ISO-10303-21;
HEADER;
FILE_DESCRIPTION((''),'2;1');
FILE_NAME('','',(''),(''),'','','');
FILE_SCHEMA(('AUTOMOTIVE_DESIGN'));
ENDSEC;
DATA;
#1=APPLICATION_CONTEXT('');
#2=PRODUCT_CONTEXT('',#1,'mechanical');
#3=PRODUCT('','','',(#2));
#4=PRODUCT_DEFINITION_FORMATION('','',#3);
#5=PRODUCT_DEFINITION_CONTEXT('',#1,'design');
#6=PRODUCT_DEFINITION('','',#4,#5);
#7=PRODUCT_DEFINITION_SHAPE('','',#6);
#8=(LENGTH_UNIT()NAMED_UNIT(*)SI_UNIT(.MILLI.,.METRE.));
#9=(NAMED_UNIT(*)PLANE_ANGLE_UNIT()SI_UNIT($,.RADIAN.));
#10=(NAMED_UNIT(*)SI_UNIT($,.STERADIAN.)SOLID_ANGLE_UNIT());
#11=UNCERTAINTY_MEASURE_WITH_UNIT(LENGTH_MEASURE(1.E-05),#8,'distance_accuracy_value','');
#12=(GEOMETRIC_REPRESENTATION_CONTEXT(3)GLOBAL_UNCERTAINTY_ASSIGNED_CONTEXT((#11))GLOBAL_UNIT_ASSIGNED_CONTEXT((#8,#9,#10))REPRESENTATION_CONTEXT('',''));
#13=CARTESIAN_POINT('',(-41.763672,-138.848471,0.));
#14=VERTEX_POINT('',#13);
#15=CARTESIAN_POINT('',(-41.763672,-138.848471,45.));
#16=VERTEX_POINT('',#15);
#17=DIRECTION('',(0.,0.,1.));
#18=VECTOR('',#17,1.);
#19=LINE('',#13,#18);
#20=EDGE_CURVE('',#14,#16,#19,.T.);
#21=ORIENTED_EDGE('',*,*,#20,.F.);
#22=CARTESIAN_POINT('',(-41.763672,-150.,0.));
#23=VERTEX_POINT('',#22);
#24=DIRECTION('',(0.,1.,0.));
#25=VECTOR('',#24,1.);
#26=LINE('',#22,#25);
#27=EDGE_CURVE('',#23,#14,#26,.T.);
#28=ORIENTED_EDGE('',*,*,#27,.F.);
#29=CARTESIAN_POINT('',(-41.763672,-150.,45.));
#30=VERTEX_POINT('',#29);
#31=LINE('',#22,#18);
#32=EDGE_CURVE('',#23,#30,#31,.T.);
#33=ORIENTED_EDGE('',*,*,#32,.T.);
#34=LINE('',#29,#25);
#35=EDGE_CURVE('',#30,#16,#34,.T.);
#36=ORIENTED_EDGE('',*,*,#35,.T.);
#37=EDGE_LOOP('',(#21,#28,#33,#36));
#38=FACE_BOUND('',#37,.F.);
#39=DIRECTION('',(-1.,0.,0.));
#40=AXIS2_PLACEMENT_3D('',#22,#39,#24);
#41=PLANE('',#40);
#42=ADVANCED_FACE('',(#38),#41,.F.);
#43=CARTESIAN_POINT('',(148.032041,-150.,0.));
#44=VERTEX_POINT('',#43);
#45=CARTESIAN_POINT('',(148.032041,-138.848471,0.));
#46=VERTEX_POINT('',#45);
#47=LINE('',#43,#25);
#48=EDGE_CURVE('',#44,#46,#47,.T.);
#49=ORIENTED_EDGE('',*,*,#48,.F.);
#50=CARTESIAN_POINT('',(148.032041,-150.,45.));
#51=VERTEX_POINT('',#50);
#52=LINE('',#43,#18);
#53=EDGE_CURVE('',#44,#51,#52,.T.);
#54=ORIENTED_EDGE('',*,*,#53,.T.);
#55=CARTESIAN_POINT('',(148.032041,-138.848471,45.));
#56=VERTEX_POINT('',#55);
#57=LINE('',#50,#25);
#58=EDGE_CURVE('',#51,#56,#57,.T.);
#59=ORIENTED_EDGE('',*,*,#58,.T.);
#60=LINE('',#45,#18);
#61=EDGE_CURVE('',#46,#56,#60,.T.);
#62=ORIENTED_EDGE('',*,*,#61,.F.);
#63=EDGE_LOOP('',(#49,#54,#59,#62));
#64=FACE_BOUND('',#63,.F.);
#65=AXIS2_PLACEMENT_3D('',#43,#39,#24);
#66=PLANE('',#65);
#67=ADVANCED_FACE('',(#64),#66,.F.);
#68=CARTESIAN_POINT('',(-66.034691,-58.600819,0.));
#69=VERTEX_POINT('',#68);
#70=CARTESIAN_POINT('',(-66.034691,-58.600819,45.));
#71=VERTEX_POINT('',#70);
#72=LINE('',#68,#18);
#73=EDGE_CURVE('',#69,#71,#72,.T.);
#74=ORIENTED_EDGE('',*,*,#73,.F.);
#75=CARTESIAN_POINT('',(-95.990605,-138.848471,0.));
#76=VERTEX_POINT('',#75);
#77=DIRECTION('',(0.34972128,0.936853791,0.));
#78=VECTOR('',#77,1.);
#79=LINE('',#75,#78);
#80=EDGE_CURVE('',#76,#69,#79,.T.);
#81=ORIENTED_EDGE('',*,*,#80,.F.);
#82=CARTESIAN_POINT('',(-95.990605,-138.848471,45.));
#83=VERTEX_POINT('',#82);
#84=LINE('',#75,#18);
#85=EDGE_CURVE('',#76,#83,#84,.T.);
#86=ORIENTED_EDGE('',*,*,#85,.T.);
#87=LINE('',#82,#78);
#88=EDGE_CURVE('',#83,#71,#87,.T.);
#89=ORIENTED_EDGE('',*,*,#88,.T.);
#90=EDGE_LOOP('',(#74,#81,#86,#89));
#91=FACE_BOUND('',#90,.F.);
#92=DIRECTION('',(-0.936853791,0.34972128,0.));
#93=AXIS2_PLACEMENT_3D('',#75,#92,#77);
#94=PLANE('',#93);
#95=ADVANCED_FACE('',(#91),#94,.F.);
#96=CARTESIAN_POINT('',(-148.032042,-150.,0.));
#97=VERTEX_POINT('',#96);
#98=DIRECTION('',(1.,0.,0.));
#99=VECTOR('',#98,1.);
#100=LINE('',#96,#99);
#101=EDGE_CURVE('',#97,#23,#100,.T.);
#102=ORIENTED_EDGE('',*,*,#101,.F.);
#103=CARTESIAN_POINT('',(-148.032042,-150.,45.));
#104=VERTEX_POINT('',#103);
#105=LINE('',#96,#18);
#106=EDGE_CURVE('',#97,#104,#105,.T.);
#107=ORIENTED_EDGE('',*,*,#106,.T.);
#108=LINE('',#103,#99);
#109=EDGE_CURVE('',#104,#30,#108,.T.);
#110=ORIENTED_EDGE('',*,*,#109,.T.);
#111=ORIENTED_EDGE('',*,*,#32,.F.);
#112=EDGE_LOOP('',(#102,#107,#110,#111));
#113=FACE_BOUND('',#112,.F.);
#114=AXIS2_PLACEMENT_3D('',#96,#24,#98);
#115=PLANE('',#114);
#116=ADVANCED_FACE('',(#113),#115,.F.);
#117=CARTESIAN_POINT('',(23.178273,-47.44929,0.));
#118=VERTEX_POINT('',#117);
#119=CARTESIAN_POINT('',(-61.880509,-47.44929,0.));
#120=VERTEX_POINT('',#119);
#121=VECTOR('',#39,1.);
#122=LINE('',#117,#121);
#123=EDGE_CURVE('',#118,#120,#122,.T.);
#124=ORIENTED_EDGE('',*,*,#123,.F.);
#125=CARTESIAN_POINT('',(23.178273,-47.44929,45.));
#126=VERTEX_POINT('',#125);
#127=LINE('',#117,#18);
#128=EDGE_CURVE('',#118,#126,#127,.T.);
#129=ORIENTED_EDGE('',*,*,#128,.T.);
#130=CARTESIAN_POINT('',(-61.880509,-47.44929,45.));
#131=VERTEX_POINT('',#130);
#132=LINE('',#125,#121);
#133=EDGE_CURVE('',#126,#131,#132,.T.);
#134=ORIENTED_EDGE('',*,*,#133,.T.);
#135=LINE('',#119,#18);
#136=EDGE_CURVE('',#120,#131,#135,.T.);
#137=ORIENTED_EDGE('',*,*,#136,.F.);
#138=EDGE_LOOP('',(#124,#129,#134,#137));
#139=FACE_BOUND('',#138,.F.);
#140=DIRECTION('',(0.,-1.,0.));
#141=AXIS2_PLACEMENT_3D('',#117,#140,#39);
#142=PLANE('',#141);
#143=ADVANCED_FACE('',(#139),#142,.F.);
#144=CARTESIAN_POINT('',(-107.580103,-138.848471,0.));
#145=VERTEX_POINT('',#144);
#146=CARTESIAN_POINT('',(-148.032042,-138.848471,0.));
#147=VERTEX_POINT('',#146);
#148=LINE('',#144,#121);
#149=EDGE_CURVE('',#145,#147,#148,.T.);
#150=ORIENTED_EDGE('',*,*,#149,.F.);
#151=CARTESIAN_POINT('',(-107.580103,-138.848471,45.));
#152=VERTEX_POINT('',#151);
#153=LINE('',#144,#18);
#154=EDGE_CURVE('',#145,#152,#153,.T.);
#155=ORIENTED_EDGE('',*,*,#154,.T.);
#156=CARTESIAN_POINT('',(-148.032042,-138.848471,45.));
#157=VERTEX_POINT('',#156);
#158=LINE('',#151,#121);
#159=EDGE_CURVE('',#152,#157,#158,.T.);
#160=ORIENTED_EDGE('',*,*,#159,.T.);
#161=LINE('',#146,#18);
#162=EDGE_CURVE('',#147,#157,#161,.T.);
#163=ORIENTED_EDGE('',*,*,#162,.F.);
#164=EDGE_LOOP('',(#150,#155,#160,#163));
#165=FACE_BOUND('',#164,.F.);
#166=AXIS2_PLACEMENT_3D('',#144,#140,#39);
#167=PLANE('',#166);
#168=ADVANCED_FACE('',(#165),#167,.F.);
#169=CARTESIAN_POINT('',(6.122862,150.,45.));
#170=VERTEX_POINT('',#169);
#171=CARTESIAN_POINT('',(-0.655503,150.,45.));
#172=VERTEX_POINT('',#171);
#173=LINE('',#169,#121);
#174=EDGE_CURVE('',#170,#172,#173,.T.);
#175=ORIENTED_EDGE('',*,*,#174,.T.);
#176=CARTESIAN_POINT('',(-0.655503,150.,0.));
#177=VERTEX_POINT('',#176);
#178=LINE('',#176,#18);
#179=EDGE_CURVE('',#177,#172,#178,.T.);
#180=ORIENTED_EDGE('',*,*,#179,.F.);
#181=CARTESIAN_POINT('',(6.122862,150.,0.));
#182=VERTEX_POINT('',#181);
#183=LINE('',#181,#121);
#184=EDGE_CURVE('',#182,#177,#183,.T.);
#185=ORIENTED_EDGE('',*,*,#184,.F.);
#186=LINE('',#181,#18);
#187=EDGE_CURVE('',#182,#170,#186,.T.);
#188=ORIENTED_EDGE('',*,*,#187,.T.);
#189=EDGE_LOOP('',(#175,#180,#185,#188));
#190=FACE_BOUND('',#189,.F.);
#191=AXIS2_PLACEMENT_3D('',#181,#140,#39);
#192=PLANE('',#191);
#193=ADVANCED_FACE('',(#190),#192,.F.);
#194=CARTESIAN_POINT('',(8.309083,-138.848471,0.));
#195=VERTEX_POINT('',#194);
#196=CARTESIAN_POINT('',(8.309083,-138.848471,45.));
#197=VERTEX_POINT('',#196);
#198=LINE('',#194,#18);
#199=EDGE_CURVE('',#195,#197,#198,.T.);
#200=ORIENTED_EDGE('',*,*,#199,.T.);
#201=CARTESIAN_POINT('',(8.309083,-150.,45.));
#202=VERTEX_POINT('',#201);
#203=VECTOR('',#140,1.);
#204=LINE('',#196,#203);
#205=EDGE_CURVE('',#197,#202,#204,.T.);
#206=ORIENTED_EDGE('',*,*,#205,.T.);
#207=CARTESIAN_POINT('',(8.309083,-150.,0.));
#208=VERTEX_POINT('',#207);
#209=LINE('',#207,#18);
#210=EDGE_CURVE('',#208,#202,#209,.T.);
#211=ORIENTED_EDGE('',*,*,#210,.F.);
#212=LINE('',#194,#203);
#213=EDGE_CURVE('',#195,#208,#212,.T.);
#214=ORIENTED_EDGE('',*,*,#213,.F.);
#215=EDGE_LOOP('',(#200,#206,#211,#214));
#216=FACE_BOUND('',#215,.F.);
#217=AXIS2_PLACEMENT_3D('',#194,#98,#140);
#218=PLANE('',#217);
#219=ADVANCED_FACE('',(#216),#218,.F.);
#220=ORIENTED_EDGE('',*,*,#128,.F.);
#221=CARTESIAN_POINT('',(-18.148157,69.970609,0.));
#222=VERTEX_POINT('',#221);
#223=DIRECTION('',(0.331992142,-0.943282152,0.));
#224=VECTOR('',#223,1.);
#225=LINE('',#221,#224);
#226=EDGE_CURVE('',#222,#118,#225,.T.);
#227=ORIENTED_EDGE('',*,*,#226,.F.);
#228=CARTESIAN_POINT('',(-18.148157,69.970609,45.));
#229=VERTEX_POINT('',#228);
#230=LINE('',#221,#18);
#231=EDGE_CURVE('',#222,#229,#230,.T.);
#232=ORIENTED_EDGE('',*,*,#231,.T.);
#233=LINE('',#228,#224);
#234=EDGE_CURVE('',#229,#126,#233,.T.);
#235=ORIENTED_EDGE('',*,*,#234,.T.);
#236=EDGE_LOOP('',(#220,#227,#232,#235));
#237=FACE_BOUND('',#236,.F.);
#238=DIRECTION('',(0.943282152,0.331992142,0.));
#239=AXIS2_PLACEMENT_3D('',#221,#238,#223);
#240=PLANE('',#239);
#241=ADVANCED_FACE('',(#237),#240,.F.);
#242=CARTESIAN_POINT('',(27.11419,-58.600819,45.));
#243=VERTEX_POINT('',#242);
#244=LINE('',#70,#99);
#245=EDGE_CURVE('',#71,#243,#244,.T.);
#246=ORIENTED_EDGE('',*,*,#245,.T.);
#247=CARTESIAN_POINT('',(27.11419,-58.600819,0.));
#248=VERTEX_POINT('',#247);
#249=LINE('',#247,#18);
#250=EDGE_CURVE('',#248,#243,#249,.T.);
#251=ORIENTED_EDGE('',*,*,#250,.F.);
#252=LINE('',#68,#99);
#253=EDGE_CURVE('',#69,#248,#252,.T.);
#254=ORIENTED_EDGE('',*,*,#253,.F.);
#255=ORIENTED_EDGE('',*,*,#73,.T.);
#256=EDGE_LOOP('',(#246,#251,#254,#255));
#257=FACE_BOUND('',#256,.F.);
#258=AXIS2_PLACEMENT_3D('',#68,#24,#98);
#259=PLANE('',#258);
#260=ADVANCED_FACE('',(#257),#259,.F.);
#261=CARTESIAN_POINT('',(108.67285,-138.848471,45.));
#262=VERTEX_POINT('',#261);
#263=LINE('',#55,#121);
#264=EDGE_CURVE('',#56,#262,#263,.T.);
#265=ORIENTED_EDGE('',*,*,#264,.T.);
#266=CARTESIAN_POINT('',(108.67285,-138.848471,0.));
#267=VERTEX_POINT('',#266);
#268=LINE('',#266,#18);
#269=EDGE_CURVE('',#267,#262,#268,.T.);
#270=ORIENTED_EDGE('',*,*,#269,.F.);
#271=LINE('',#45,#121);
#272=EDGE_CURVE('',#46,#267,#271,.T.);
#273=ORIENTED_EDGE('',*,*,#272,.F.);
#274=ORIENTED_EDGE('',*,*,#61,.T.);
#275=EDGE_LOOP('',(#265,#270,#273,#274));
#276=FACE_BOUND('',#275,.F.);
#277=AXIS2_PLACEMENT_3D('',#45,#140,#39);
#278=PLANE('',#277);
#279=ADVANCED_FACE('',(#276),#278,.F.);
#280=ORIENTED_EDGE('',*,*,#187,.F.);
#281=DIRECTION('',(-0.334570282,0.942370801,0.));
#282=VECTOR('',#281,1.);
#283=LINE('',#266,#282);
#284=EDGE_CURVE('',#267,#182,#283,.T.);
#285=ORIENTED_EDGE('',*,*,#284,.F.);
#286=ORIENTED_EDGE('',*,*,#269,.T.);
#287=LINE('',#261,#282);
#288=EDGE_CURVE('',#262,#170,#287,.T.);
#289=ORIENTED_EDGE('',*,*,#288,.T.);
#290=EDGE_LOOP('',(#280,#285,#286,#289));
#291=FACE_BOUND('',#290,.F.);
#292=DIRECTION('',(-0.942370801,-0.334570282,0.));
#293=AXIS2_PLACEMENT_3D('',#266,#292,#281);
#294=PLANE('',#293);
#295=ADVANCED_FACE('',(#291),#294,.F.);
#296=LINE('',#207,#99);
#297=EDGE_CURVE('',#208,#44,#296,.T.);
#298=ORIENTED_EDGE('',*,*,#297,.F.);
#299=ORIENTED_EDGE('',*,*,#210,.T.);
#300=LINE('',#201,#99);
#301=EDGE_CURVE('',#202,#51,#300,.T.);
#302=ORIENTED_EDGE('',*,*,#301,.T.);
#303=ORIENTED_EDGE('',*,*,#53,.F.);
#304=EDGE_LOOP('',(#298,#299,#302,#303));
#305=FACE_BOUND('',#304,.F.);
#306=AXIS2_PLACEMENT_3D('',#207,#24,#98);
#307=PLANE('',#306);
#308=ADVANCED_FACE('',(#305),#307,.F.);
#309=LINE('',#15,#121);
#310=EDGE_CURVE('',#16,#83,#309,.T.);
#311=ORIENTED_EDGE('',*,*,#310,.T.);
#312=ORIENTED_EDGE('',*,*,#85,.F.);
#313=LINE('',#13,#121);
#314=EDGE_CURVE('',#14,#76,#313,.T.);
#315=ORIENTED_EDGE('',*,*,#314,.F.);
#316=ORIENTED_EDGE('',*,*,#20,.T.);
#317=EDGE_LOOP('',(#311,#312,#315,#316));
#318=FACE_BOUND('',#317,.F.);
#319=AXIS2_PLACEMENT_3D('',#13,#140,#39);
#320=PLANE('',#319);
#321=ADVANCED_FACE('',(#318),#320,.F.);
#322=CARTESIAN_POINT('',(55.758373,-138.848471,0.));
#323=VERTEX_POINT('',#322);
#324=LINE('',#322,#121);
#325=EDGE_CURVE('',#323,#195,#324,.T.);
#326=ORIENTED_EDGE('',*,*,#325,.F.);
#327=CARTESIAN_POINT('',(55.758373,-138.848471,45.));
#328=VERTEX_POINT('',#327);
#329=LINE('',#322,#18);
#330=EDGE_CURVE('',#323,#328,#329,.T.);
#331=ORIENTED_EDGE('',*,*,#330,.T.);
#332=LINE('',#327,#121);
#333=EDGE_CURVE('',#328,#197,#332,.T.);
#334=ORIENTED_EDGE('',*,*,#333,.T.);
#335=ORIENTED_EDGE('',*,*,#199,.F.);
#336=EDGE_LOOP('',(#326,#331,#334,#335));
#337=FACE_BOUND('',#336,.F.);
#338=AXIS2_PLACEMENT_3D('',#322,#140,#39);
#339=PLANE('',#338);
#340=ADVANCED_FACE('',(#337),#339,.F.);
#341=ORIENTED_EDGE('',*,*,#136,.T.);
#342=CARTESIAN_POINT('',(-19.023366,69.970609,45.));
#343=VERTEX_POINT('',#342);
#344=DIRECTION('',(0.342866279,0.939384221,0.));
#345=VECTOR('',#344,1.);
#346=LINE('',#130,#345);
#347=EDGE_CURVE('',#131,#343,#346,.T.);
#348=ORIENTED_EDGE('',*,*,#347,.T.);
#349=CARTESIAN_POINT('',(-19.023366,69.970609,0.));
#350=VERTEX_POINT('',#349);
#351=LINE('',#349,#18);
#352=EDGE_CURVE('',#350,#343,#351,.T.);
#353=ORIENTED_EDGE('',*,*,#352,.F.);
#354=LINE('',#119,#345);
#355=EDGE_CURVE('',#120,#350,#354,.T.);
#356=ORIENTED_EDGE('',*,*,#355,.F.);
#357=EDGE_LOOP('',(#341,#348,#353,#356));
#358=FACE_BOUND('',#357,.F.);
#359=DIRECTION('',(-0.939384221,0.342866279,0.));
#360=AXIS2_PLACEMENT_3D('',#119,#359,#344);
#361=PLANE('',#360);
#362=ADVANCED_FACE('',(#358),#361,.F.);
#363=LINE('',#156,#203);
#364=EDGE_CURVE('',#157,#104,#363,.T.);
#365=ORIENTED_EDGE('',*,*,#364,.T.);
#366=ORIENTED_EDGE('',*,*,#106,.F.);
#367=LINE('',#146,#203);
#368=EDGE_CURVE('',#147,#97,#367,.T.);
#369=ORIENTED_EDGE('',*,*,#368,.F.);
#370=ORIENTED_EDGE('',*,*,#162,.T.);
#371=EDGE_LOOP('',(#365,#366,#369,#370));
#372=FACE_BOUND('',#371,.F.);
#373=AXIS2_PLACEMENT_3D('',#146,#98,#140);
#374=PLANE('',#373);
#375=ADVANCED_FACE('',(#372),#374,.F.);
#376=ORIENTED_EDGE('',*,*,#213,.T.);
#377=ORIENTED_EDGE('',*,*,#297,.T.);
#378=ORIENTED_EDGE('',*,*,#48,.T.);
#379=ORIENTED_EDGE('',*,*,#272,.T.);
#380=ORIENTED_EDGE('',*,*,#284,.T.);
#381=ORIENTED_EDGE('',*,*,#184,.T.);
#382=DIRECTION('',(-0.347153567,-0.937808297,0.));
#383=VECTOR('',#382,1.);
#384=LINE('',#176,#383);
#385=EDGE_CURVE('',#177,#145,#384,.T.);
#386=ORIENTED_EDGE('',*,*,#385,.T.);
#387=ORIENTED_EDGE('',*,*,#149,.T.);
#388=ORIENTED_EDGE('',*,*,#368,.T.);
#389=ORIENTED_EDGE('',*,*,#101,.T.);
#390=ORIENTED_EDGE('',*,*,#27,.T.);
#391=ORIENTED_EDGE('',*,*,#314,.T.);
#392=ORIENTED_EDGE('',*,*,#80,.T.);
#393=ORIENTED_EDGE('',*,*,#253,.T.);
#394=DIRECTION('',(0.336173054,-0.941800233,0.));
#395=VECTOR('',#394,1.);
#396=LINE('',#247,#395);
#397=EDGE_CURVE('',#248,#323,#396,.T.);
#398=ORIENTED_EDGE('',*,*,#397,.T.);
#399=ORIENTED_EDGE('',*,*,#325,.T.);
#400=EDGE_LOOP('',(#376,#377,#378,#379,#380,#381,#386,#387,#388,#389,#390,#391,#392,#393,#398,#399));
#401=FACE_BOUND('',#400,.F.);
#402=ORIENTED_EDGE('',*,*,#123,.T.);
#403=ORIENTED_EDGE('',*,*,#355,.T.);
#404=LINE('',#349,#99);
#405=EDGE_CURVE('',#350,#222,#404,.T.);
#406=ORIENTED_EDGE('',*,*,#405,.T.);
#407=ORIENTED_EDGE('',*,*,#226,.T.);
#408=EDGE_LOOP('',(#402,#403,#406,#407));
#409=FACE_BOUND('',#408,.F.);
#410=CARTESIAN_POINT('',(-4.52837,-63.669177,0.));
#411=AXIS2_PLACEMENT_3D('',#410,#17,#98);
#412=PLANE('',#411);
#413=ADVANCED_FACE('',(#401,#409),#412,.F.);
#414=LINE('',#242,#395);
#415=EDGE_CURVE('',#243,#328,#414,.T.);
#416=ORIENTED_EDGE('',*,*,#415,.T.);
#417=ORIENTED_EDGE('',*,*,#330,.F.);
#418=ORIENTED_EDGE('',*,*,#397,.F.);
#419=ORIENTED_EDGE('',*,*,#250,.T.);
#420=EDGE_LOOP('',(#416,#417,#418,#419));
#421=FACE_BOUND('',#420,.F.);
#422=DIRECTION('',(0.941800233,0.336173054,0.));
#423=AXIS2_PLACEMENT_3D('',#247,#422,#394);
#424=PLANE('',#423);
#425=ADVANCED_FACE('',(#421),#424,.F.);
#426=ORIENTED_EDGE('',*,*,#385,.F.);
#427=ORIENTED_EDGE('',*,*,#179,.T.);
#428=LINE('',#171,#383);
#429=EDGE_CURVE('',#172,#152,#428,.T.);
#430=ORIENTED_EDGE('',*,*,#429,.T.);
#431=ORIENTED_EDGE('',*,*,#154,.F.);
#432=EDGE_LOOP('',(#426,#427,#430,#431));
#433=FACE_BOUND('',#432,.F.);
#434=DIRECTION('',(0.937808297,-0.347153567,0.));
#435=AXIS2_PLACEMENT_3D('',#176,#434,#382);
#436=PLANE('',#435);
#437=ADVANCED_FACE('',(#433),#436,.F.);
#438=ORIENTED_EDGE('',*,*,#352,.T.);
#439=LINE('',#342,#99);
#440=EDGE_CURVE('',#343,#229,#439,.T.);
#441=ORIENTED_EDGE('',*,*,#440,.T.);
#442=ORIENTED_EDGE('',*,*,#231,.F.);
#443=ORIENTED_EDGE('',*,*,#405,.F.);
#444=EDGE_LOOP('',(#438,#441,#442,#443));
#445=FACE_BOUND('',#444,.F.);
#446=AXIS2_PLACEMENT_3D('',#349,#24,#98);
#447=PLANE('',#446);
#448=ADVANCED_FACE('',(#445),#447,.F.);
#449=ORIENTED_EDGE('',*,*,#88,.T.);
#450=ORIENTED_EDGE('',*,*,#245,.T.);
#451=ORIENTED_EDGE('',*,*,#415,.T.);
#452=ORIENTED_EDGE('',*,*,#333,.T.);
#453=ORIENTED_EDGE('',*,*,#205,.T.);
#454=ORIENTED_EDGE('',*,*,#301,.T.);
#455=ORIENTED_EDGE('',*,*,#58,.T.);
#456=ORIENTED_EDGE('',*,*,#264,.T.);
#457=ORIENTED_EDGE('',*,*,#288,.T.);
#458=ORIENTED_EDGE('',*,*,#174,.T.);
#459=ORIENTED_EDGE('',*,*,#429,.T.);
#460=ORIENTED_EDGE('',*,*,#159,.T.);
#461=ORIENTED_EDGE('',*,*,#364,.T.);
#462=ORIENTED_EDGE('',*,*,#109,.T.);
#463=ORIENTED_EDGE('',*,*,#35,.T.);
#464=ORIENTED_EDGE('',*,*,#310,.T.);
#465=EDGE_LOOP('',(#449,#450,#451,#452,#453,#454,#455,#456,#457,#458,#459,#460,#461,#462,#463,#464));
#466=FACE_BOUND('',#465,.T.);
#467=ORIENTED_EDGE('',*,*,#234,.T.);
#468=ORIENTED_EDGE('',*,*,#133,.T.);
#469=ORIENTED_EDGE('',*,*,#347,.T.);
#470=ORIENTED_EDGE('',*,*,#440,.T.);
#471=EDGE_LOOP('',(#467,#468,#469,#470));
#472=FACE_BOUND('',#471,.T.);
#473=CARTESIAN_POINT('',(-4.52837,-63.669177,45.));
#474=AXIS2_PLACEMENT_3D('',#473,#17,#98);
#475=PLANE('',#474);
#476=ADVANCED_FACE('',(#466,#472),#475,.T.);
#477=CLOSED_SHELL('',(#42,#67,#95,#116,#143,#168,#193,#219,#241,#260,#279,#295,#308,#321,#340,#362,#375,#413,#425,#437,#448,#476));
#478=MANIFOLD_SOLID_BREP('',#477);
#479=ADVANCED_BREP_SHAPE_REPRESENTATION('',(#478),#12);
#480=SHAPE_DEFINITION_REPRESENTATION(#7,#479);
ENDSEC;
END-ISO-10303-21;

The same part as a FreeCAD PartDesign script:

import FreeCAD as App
import Part
import Sketcher
from FreeCAD import Vector
Q = App.Units.Quantity


def add_polygon(sketch, points):
    """Adds a closed chain of lines whose ends are joined by coincident constraints."""
    first, n = sketch.GeometryCount, len(points)
    for a, b in zip(points, points[1:] + points[:1]):
        sketch.addGeometry(Part.LineSegment(App.Vector(*a, 0), App.Vector(*b, 0)), False)
    for i in range(n):
        sketch.addConstraint(Sketcher.Constraint("Coincident", first + i, 2, first + (i + 1) % n, 1))

doc = App.newDocument("Part")
body = doc.addObject("PartDesign::Body", "Body")

# Sketch on XY plane
sketch1 = body.newObject("Sketcher::SketchObject", "Sketch")
sketch1.AttachmentSupport = (doc.getObject("XY_Plane"), [""])
sketch1.MapMode = "FlatFace"
add_polygon(sketch1, [(-66.034691, -58.600819), (27.11419, -58.600819), (55.758373, -138.848471), (8.309083, -138.848471), (8.309083, -150), (148.032041, -150), (148.032041, -138.848471), (108.67285, -138.848471), (6.122862, 150), (-0.655503, 150), (-107.580103, -138.848471), (-148.032042, -138.848471), (-148.032042, -150), (-41.763672, -150), (-41.763672, -138.848471), (-95.990605, -138.848471)])  # lines 0-15
add_polygon(sketch1, [(-18.148157, 69.970609), (23.178273, -47.44929), (-61.880509, -47.44929), (-19.023366, 69.970609)])  # lines 16-19
sketch1.addConstraint([
    Sketcher.Constraint("Horizontal", 0),
    Sketcher.Constraint("Horizontal", 2),
    Sketcher.Constraint("Vertical", 3),
    Sketcher.Constraint("Horizontal", 4),
    Sketcher.Constraint("Vertical", 5),
    Sketcher.Constraint("Horizontal", 6),
    Sketcher.Constraint("Horizontal", 8),
    Sketcher.Constraint("Horizontal", 10),
    Sketcher.Constraint("Vertical", 11),
    Sketcher.Constraint("Horizontal", 12),
    Sketcher.Constraint("Vertical", 13),
    Sketcher.Constraint("Horizontal", 14),
    Sketcher.Constraint("Horizontal", 17),
    Sketcher.Constraint("Horizontal", 19),
    Sketcher.Constraint("Symmetric", 5, 2, 10, 2, -2),
    Sketcher.Constraint("Horizontal", 2, 2, 5, 2),
    Sketcher.Constraint("Horizontal", 4, 2, 11, 2),
    Sketcher.Constraint("Horizontal", 10, 2, 13, 2),
    Sketcher.Constraint("DistanceY", 3, 2, -1, 1, Q("150 mm")),
    Sketcher.Constraint("DistanceY", -1, 1, 7, 2, Q("150 mm")),
    Sketcher.Constraint("DistanceX", 0, 1, 0, 2, Q("93.148881 mm")),
    Sketcher.Constraint("DistanceX", 2, 2, 2, 1, Q("47.44929 mm")),
    Sketcher.Constraint("DistanceX", 4, 1, 4, 2, Q("139.722958 mm")),
    Sketcher.Constraint("DistanceX", 6, 2, 6, 1, Q("39.359191 mm")),
    Sketcher.Constraint("DistanceX", 10, 2, 10, 1, Q("40.451939 mm")),
    Sketcher.Constraint("DistanceX", 12, 1, 12, 2, Q("106.26837 mm")),
    Sketcher.Constraint("DistanceX", 19, 1, 19, 2, Q("0.875209 mm")),
    Sketcher.Constraint("DistanceY", 3, 2, 3, 1, Q("11.151529 mm")),
    Sketcher.Constraint("DistanceX", 16, 2, 1, 2, Q("32.5801 mm")),
    Sketcher.Constraint("DistanceX", 17, 2, 0, 2, Q("88.994699 mm")),
    Sketcher.Constraint("DistanceY", 16, 2, 18, 2, Q("117.419899 mm")),
    Sketcher.Constraint("Distance", 1, Q("85.20666 mm")),
    Sketcher.Constraint("Distance", 9, Q("308.003749 mm")),
    Sketcher.Constraint("Distance", 18, Q("124.99667 mm")),
    Sketcher.Constraint("DistanceX", 8, 2, 8, 1, Q("6.778365 mm")),
    Sketcher.Constraint("DistanceX", 14, 2, 14, 1, Q("54.226933 mm")),
    Sketcher.Constraint("DistanceX", 17, 2, 17, 1, Q("85.058782 mm")),
    Sketcher.Constraint("DistanceX", -1, 1, 0, 2, Q("27.11419 mm")),
    Sketcher.Constraint("DistanceY", 16, 2, -1, 1, Q("47.44929 mm")),
])
pad1 = body.newObject("PartDesign::Pad", "Pad")
pad1.Profile = sketch1
pad1.Length = 45

doc.recompute()
